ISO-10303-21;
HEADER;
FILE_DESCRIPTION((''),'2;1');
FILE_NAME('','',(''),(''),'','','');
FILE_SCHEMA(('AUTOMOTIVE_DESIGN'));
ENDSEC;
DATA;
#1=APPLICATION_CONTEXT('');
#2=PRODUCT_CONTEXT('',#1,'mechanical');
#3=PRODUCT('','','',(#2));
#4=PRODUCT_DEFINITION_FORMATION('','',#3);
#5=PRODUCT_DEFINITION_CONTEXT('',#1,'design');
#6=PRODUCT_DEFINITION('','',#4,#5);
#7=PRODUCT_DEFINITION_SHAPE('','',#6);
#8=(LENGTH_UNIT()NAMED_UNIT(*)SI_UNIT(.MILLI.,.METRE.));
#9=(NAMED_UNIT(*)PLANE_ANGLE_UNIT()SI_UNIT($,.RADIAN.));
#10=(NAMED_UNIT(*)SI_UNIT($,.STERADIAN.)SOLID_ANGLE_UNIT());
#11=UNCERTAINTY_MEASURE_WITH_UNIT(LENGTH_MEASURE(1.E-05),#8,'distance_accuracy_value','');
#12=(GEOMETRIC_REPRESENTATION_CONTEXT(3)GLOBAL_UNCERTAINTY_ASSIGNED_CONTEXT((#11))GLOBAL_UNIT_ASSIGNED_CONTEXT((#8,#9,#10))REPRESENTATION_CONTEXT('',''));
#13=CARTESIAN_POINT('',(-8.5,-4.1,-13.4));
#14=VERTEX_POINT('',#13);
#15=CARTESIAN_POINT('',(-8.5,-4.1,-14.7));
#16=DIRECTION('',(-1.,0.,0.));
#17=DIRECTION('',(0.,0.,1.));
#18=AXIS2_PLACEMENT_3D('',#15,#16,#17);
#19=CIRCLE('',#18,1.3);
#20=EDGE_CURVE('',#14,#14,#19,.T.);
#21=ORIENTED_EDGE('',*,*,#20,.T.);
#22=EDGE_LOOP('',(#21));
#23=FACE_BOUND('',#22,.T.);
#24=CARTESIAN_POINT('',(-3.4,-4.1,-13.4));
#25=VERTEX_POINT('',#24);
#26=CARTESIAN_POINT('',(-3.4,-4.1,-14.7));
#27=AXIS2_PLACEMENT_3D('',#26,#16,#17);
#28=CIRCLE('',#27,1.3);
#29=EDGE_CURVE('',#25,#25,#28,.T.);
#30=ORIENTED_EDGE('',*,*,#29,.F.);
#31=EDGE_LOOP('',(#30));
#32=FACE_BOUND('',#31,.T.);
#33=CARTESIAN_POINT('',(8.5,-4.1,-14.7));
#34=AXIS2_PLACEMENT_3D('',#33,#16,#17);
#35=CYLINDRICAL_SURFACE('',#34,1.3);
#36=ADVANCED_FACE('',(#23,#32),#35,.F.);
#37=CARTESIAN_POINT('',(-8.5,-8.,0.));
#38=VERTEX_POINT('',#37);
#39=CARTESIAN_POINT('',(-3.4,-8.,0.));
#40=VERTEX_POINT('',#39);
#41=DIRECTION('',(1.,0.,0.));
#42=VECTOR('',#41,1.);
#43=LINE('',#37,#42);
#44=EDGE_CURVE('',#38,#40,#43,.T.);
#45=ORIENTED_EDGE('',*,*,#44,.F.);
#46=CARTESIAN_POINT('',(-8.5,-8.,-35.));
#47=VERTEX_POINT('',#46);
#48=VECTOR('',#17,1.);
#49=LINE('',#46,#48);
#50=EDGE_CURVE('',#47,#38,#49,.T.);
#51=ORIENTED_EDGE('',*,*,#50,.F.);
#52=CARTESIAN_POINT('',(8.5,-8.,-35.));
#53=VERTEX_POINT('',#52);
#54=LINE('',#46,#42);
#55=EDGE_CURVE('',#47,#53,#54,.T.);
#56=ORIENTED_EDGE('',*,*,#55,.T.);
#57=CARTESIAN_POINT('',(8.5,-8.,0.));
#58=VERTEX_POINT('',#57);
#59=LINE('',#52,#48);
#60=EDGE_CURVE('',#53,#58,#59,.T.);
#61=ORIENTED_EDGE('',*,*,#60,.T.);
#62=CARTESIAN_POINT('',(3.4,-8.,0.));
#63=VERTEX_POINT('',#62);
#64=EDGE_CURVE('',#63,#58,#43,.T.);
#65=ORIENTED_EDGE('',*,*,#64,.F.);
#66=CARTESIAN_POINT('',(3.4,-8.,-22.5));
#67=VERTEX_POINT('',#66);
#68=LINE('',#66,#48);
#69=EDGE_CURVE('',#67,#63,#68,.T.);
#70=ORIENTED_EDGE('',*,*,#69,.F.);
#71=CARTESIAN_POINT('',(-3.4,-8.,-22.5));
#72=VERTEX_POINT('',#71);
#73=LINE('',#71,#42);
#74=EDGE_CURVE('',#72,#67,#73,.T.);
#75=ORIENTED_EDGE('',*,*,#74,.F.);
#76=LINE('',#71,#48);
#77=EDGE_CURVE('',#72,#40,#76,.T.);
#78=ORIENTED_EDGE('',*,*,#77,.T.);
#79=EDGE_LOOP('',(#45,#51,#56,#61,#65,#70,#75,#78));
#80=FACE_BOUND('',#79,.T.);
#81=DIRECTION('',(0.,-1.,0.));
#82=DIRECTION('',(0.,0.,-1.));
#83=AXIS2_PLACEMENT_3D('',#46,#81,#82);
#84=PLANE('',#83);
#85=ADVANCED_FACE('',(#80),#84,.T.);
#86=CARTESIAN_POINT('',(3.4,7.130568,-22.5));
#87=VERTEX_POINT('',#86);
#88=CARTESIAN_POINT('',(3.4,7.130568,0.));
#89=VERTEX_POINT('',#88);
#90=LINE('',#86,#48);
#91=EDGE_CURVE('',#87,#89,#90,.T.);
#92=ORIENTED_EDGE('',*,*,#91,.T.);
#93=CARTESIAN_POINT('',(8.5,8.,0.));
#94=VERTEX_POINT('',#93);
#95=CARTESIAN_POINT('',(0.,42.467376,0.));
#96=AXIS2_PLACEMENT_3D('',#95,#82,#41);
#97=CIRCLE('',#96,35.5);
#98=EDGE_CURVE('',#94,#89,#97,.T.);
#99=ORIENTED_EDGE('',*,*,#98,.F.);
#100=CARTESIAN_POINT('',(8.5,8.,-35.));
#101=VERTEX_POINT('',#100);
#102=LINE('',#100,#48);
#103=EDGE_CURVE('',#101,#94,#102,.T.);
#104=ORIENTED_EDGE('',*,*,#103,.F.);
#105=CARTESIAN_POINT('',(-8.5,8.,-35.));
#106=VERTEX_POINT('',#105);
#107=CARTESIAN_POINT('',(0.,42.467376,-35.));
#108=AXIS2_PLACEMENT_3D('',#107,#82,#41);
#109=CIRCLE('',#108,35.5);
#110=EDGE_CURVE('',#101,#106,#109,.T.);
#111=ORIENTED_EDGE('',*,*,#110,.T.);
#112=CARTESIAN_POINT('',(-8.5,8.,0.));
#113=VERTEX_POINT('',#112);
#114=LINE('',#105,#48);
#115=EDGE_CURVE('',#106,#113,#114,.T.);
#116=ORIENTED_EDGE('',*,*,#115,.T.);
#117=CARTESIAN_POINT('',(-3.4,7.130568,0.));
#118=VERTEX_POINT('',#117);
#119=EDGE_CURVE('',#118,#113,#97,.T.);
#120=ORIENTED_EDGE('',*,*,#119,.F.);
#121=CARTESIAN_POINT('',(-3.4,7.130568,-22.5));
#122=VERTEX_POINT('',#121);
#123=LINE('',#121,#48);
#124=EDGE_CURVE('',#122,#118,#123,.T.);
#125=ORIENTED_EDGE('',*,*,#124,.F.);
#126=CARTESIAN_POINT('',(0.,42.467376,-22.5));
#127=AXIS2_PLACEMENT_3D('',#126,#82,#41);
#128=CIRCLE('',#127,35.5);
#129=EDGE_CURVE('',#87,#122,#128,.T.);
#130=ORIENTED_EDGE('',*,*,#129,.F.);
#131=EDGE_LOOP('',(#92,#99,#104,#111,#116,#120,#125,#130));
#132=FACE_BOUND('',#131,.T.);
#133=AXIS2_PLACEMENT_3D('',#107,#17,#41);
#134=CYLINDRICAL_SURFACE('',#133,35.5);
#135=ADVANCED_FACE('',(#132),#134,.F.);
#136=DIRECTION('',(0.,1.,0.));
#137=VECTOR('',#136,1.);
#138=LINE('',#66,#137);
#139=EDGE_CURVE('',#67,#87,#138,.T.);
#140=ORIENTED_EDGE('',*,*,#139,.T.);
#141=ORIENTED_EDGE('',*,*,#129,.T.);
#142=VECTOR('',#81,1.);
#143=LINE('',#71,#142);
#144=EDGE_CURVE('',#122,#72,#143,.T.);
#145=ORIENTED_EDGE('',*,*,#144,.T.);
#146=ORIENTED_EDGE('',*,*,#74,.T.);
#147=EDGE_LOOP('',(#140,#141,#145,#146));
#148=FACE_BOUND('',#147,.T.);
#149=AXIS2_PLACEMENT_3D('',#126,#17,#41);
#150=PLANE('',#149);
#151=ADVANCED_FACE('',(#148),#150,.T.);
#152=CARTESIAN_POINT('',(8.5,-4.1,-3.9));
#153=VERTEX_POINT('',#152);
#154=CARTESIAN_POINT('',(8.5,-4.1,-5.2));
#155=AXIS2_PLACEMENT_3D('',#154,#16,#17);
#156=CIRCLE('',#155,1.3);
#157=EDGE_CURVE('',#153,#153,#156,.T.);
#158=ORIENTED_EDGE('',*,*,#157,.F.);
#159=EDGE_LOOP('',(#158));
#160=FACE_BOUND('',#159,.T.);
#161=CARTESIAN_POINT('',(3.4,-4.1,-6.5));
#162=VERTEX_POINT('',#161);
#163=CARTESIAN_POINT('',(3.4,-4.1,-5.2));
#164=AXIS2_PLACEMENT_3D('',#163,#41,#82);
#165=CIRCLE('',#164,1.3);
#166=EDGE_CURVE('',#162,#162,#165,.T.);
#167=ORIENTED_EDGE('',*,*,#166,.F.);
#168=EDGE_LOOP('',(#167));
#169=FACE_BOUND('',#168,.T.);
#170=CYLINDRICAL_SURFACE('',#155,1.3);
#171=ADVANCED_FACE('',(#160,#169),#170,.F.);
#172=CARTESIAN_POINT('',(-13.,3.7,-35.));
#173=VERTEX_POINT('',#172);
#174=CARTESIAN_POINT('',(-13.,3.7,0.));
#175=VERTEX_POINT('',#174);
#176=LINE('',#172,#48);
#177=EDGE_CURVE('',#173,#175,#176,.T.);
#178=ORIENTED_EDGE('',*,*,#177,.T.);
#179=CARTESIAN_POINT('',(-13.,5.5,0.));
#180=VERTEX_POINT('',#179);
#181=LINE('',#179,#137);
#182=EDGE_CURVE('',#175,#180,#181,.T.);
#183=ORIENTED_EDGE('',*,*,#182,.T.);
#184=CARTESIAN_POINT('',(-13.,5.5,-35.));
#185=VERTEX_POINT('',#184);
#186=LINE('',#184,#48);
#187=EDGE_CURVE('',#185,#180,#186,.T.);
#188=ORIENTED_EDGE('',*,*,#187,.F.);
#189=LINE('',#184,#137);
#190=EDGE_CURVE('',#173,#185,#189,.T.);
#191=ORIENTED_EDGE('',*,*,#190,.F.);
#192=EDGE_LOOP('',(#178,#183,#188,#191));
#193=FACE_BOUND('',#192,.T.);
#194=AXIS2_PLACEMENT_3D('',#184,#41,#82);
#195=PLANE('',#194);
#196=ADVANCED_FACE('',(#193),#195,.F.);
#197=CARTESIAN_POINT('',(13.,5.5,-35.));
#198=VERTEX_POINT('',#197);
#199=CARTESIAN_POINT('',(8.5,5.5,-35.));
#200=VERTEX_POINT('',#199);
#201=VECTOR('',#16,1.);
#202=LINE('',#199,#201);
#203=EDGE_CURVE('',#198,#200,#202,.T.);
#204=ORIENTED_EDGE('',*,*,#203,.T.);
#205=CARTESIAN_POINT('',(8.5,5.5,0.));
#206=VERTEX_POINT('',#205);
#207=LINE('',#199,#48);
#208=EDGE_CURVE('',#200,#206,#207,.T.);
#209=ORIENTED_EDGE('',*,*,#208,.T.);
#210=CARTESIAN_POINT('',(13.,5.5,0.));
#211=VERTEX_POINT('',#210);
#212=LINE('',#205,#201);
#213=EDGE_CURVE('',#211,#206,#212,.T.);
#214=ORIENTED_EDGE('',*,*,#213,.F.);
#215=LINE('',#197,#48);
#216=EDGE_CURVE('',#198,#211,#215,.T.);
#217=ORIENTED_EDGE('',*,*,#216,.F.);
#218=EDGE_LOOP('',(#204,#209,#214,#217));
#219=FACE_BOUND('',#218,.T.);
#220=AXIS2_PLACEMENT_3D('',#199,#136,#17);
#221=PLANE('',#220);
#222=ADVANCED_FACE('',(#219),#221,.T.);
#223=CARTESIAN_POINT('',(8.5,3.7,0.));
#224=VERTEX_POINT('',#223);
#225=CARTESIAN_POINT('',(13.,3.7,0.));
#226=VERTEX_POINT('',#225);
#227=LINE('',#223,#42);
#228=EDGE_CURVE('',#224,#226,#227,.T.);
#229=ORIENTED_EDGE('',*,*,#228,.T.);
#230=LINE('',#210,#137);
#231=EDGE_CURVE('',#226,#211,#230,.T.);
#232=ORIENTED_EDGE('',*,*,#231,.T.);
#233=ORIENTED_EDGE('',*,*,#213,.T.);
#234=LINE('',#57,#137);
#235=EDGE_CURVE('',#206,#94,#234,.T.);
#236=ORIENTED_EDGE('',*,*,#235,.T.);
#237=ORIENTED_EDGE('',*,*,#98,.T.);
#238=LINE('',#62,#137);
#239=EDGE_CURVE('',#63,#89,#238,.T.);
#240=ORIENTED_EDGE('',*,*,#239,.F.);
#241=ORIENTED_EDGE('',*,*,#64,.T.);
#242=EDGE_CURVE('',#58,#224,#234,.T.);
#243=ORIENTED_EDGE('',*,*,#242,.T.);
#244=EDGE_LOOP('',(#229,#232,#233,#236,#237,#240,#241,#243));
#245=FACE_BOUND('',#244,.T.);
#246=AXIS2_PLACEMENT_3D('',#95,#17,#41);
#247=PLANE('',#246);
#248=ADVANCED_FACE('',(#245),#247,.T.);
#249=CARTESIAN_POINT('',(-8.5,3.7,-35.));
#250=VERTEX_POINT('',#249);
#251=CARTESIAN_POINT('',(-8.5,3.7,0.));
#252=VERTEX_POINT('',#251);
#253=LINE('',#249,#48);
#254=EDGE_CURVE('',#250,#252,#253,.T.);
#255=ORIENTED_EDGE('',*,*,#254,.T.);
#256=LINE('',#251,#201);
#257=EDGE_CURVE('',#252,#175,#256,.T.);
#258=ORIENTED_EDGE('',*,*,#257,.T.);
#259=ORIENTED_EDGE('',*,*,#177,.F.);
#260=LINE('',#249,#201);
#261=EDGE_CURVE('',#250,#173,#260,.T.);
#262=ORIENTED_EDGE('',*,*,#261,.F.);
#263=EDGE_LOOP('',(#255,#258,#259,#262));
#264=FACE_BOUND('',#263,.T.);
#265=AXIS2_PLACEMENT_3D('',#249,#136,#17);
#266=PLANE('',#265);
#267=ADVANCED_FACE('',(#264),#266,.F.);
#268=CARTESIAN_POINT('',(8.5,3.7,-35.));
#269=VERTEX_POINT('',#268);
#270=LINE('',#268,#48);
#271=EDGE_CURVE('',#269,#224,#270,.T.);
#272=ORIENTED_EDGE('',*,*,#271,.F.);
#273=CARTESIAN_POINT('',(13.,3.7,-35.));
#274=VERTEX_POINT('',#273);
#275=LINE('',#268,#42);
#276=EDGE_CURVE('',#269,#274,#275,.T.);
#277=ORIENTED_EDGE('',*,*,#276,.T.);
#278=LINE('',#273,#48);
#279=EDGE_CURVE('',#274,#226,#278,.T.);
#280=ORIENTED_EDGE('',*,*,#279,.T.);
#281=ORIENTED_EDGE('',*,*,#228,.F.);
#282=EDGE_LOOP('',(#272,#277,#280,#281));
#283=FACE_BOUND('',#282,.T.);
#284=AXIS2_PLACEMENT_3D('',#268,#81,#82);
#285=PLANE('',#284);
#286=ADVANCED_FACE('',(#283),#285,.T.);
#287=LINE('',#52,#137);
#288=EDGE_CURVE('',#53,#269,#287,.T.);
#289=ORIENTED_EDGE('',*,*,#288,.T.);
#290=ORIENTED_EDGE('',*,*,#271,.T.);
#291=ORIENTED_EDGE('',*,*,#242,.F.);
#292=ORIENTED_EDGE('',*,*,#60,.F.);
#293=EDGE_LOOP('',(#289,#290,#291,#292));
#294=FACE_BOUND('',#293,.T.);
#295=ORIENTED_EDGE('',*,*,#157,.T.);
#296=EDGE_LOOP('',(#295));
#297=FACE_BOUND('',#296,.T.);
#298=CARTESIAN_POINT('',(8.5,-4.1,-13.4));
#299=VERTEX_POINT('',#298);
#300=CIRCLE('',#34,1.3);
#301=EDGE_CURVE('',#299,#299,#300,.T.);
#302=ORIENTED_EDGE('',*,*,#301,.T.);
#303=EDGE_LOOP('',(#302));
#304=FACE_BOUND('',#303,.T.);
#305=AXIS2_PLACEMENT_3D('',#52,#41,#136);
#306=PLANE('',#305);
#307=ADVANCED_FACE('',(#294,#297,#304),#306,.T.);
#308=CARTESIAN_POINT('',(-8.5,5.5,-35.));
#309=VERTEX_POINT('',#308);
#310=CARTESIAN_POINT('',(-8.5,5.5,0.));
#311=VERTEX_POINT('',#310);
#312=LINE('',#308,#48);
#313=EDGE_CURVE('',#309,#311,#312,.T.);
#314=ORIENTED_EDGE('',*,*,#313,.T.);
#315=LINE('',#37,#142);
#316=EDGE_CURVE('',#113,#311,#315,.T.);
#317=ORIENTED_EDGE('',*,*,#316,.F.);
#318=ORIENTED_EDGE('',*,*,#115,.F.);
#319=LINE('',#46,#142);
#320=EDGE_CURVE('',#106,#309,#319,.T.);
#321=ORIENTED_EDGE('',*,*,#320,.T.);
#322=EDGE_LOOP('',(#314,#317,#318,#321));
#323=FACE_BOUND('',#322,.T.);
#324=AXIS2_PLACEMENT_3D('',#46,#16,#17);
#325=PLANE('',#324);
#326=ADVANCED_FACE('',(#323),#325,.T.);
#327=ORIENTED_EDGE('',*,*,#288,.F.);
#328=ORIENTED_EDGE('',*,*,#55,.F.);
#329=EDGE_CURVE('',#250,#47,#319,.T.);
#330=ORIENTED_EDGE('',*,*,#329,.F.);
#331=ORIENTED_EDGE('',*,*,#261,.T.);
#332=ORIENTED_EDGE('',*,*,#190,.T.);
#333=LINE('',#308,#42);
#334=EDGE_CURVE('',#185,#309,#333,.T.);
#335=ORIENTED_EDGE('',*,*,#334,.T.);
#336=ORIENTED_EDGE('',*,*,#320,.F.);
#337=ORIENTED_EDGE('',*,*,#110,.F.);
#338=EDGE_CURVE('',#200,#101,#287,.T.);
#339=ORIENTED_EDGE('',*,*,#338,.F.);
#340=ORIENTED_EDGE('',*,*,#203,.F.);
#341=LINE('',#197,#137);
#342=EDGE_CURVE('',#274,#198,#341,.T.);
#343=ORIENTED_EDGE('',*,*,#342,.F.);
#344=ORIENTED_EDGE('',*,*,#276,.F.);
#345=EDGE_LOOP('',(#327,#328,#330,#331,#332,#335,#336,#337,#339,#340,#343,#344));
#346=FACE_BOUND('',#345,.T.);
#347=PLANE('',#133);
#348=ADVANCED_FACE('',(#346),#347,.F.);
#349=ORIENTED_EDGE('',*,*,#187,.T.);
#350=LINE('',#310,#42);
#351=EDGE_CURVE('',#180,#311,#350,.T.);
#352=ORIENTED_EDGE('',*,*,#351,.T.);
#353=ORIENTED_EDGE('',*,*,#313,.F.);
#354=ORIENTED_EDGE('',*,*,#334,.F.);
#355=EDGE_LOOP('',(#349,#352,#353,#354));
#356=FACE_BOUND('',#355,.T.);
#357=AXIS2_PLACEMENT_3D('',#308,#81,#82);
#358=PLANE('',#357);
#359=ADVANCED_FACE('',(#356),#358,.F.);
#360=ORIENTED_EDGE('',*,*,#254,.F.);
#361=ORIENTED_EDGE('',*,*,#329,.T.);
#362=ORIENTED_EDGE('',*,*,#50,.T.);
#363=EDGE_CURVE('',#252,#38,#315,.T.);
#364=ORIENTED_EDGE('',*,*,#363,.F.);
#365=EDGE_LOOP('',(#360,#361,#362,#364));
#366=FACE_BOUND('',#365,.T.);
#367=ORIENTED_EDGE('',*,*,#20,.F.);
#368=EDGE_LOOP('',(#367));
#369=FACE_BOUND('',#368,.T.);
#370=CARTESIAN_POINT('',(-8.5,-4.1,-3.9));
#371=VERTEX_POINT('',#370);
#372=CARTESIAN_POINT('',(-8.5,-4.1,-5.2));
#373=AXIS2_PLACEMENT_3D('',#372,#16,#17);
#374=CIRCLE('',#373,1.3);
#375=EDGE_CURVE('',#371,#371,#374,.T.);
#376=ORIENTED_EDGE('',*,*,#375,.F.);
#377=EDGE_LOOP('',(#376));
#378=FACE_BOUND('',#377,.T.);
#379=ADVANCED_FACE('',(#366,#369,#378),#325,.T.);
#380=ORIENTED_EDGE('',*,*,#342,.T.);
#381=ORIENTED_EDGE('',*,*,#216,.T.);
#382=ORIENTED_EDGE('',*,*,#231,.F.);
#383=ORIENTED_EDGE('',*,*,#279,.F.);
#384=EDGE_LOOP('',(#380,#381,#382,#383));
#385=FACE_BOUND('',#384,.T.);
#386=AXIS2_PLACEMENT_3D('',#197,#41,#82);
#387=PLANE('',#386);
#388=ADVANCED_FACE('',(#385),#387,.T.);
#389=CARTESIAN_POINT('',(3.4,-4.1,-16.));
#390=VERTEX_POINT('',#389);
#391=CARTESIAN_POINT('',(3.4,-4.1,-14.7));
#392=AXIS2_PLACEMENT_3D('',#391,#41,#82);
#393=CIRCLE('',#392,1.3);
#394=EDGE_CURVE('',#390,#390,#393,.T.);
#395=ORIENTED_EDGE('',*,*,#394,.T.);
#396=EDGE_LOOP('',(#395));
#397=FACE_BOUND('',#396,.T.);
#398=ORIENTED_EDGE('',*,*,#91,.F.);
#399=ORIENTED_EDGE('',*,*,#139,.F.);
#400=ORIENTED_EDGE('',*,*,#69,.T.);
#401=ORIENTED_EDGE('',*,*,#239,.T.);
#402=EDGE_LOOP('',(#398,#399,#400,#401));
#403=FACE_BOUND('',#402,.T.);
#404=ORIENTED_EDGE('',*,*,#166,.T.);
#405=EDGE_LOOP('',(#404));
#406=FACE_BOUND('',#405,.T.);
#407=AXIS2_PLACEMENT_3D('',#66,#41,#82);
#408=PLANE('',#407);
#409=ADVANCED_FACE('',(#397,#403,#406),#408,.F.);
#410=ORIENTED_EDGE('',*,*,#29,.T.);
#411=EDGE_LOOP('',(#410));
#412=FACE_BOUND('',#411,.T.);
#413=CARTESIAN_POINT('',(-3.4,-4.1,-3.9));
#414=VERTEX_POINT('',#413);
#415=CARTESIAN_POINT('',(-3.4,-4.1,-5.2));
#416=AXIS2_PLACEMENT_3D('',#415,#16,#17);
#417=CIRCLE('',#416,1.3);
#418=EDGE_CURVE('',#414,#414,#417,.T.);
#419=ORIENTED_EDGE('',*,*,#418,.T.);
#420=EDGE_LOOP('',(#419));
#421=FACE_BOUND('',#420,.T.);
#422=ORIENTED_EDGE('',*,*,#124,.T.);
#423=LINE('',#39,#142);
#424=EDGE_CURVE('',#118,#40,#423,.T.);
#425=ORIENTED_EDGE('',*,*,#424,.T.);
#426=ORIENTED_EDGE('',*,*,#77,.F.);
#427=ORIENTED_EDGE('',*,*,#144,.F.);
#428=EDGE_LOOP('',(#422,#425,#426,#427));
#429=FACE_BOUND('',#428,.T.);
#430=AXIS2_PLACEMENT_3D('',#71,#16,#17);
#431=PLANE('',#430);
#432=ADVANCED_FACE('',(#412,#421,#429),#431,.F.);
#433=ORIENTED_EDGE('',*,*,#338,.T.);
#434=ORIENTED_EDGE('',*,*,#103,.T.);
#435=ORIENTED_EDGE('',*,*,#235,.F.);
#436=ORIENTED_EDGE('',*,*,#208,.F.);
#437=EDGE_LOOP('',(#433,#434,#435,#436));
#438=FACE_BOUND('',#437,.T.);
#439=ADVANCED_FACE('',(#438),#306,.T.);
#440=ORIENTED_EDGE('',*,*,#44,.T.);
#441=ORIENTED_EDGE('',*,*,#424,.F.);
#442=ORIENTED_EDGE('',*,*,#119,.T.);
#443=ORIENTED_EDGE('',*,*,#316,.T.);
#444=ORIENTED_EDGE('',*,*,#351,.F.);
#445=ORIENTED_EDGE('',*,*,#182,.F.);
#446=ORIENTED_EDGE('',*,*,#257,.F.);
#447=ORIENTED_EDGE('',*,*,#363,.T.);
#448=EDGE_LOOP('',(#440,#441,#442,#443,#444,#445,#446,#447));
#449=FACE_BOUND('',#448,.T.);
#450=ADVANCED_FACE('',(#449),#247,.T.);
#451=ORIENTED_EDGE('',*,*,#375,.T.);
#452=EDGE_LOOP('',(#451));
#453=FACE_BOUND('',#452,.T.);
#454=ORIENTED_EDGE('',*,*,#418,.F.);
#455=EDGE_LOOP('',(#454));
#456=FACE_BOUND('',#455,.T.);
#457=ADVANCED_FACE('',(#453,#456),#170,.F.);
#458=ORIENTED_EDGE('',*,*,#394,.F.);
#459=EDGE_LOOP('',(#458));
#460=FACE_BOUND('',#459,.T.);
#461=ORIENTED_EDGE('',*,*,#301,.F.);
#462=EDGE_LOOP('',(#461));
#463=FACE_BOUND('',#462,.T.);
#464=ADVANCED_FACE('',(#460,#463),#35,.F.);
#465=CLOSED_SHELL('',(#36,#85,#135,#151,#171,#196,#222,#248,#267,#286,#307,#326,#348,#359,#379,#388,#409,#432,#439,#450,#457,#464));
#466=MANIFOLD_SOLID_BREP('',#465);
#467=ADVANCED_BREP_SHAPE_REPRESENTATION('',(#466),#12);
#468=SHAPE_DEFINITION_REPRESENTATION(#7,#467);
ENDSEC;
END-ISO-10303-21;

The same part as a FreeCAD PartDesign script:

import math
import FreeCAD as App
import Part
import Sketcher

V = App.Vector
Q = App.Units.Quantity


def add_polygon(sketch, points):
    """Adds a closed chain of lines whose ends are joined by coincident constraints."""
    first, n = sketch.GeometryCount, len(points)
    for a, b in zip(points, points[1:] + points[:1]):
        sketch.addGeometry(Part.LineSegment(App.Vector(*a, 0), App.Vector(*b, 0)), False)
    for i in range(n):
        sketch.addConstraint(Sketcher.Constraint("Coincident", first + i, 2, first + (i + 1) % n, 1))

doc = App.newDocument("Part")
body = doc.addObject("PartDesign::Body", "Body")

# Sketch on XY plane
sketch1 = body.newObject("Sketcher::SketchObject", "Sketch")
sketch1.AttachmentSupport = (doc.getObject("XY_Plane"), [""])
sketch1.MapMode = "FlatFace"
sketch1.addGeometry([
    Part.LineSegment(V(-8, -8, 0), V(8, -8, 0)),
    Part.LineSegment(V(8, -8, 0), V(8, 8, 0)),
    Part.ArcOfCircle(Part.Circle(V(0, 42, 0), V(0, 0, 1), 35), math.radians(-104), math.radians(-76)),
    Part.LineSegment(V(-8, 8, 0), V(-8, -8, 0)),
], False)
sketch1.addConstraint([
    Sketcher.Constraint("Coincident", 0, 2, 1, 1),
    Sketcher.Constraint("Coincident", 1, 2, 2, 2),
    Sketcher.Constraint("Coincident", 2, 1, 3, 1),
    Sketcher.Constraint("Coincident", 3, 2, 0, 1),
    Sketcher.Constraint("Horizontal", 0),
    Sketcher.Constraint("Vertical", 1),
    Sketcher.Constraint("Vertical", 3),
    Sketcher.Constraint("Symmetric", 0, 2, 2, 1, -1, 1),
    Sketcher.Constraint("PointOnObject", 2, 3, -2),
    Sketcher.Constraint("Radius", 2, Q("35.5 mm")),
    Sketcher.Constraint("DistanceX", 0, 1, 0, 2, Q("17 mm")),
    Sketcher.Constraint("DistanceY", 1, 1, 1, 2, Q("16 mm")),
])
pad1 = body.newObject("PartDesign::Pad", "Pad")
pad1.Profile = sketch1
pad1.Length = 35
pad1.Reversed = True

# Sketch on XY plane
sketch2 = body.newObject("Sketcher::SketchObject", "Sketch001")
sketch2.AttachmentSupport = (doc.getObject("XY_Plane"), [""])
sketch2.MapMode = "FlatFace"
sketch2.addGeometry([
    Part.LineSegment(V(-3, -8, 0), V(3, -8, 0)),
    Part.LineSegment(V(3, -8, 0), V(3, 7, 0)),
    Part.ArcOfCircle(Part.Circle(V(0, 42, 0), V(0, 0, 1), 35), math.radians(-95.5), math.radians(-84.5)),
    Part.LineSegment(V(-3, 7, 0), V(-3, -8, 0)),
], False)
sketch2.addConstraint([
    Sketcher.Constraint("Coincident", 0, 2, 1, 1),
    Sketcher.Constraint("Coincident", 1, 2, 2, 2),
    Sketcher.Constraint("Coincident", 2, 1, 3, 1),
    Sketcher.Constraint("Coincident", 3, 2, 0, 1),
    Sketcher.Constraint("Horizontal", 0),
    Sketcher.Constraint("Vertical", 1),
    Sketcher.Constraint("Vertical", 3),
    Sketcher.Constraint("Symmetric", 1, 2, 2, 1, -2),
    Sketcher.Constraint("Radius", 2, Q("35.5 mm")),
    Sketcher.Constraint("DistanceX", 0, 1, 0, 2, Q("6.8 mm")),
    Sketcher.Constraint("DistanceY", 0, 2, -1, 1, Q("8 mm")),
    Sketcher.Constraint("DistanceY", 1, 1, 1, 2, Q("15.130568 mm")),
])
pocket1 = body.newObject("PartDesign::Pocket", "Pocket")
pocket1.Profile = sketch2
pocket1.Length = 22.5

# Sketch on YZ plane
sketch3 = body.newObject("Sketcher::SketchObject", "Sketch002")
sketch3.AttachmentSupport = (doc.getObject("YZ_Plane"), [""])
sketch3.MapMode = "FlatFace"
sketch3.AttachmentOffset = App.Placement(V(0, 0, -8.5), App.Rotation())
sketch3.addGeometry([
    Part.Circle(V(-4.1, -5.2, 0), V(0, 0, 1), 1.3),
    Part.Circle(V(-4.1, -14.7, 0), V(0, 0, 1), 1.3),
], False)
sketch3.addConstraint([
    Sketcher.Constraint("Equal", 0, 1),
    Sketcher.Constraint("Vertical", 0, 3, 1, 3),
    Sketcher.Constraint("Diameter", 0, Q("2.6 mm")),
    Sketcher.Constraint("DistanceX", 0, 3, -1, 1, Q("4.1 mm")),
    Sketcher.Constraint("DistanceY", 0, 3, -1, 1, Q("5.2 mm")),
    Sketcher.Constraint("DistanceY", 1, 3, -1, 1, Q("14.7 mm")),
])
pocket2 = body.newObject("PartDesign::Pocket", "Pocket001")
pocket2.Profile = sketch3
pocket2.Type = "ThroughAll"
pocket2.Reversed = True

# Sketch on XY plane
sketch4 = body.newObject("Sketcher::SketchObject", "Sketch003")
sketch4.AttachmentSupport = (doc.getObject("XY_Plane"), [""])
sketch4.MapMode = "FlatFace"
add_polygon(sketch4, [(8.5, 5.5), (8.5, 3.7), (13, 3.7), (13, 5.5)])  # lines 0-3
sketch4.addConstraint([
    Sketcher.Constraint("Vertical", 0),
    Sketcher.Constraint("Horizontal", 1),
    Sketcher.Constraint("Vertical", 2),
    Sketcher.Constraint("Horizontal", 3),
    Sketcher.Constraint("DistanceX", 1, 1, 1, 2, Q("4.5 mm")),
    Sketcher.Constraint("DistanceY", 0, 2, 0, 1, Q("1.8 mm")),
    Sketcher.Constraint("DistanceX", -1, 1, 1, 2, Q("13 mm")),
    Sketcher.Constraint("DistanceY", -1, 1, 0, 2, Q("3.7 mm")),
])
pad2 = body.newObject("PartDesign::Pad", "Pad001")
pad2.Profile = sketch4
pad2.Length = 35
pad2.Reversed = True
doc.recompute()

mirrored = body.newObject("PartDesign::Mirrored", "Mirrored")
mirrored.Originals = [pad2]
mirrored.MirrorPlane = (doc.getObject("YZ_Plane"), [""])
body.Tip = mirrored

doc.recompute()
